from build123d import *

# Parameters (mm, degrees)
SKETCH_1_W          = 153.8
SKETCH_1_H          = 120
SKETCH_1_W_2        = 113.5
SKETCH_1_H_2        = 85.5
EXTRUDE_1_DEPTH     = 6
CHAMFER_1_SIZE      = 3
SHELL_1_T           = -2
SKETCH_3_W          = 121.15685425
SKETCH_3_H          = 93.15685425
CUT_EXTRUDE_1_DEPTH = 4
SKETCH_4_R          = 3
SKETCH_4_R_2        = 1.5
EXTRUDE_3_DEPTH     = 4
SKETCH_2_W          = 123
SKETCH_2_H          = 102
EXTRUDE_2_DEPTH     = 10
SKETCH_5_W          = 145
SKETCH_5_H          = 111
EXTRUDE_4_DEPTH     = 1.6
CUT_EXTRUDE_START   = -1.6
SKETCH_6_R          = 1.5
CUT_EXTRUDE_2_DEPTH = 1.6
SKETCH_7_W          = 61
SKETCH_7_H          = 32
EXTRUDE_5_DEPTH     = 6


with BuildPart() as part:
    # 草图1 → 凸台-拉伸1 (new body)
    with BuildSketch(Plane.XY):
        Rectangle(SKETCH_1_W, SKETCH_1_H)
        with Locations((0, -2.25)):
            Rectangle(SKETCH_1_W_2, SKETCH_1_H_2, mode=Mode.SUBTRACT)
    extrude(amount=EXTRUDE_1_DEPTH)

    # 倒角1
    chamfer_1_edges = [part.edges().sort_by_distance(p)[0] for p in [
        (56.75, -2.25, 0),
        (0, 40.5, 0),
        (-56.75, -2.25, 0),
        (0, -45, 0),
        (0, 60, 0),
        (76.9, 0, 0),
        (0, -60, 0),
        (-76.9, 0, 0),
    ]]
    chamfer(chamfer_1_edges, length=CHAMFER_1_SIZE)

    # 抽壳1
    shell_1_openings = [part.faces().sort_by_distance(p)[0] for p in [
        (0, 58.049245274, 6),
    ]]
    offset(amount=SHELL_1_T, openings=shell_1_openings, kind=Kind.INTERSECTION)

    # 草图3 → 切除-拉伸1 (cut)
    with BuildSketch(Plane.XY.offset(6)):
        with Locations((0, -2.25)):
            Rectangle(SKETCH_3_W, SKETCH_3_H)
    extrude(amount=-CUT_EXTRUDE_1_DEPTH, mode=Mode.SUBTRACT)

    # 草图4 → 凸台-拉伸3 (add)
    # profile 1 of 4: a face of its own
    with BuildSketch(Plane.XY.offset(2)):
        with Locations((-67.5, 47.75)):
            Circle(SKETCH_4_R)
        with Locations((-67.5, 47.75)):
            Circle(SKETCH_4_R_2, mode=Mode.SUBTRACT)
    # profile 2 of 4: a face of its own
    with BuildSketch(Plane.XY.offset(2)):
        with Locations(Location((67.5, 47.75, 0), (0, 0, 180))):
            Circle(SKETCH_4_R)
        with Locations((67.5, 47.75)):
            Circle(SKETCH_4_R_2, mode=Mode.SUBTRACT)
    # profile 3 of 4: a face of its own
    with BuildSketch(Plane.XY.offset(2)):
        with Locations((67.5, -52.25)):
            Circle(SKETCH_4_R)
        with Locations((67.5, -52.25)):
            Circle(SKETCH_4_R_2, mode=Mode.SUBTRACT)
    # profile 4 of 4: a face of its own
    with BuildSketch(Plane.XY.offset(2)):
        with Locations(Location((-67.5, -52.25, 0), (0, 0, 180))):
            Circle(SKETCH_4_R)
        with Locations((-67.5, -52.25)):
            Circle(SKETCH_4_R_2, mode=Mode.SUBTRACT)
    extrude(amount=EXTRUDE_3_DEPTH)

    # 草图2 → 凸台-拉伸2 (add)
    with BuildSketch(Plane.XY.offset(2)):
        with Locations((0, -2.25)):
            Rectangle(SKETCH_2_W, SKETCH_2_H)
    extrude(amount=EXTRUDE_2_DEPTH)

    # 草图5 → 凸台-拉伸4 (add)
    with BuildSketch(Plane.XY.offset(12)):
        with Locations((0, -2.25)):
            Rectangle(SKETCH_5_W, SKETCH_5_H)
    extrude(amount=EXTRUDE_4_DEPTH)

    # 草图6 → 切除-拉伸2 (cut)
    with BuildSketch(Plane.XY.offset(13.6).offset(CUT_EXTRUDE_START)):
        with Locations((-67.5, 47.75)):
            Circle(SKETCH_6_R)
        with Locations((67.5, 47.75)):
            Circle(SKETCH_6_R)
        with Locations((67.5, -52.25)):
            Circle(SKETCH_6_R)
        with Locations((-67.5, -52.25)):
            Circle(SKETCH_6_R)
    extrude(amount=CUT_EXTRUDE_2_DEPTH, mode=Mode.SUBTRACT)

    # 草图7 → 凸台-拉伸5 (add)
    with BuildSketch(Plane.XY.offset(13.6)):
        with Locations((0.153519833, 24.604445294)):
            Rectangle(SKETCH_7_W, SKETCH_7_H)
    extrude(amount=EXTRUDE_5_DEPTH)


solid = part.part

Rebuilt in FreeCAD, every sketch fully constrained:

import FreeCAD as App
import Part
import Sketcher

V = App.Vector
Q = App.Units.Quantity


def edges_at(feature, points):
    """Names of the edges that pass closest to the given points."""
    edges = feature.Shape.Edges
    near = lambda p: min(range(len(edges)), key=lambda i: edges[i].distToShape(Part.Vertex(*p))[0])
    return sorted({f"Edge{near(p) + 1}" for p in points})


def faces_at(feature, points):
    """Names of the faces that lie closest to the given points."""
    faces = feature.Shape.Faces
    near = lambda p: min(range(len(faces)), key=lambda i: faces[i].distToShape(Part.Vertex(*p))[0])
    return sorted({f"Face{near(p) + 1}" for p in points})


def add_polygon(sketch, points):
    """Adds a closed chain of lines whose ends are joined by coincident constraints."""
    first, n = sketch.GeometryCount, len(points)
    for a, b in zip(points, points[1:] + points[:1]):
        sketch.addGeometry(Part.LineSegment(App.Vector(*a, 0), App.Vector(*b, 0)), False)
    for i in range(n):
        sketch.addConstraint(Sketcher.Constraint("Coincident", first + i, 2, first + (i + 1) % n, 1))

doc = App.newDocument("Part")
params = doc.addObject("Spreadsheet::Sheet", "Params")
for row, (alias, value) in enumerate([
    ("sketch1_height", "120 mm"),
    ("sketch1_width", "153.8 mm"),
    ("sketch1_width2", "113.5 mm"),
    ("sketch1_height2", "85.5 mm"),
    ("pad1_length", "6 mm"),
    ("chamfer_size", "3 mm"),
    ("thickness_wall", "2 mm"),
    ("pocket1_length", "4 mm"),
    ("sketch3_diameter", "6 mm"),
    ("sketch3_diameter2", "3 mm"),
    ("pad2_length", "4 mm"),
    ("sketch4_width", "123 mm"),
    ("sketch4_height", "102 mm"),
    ("pad3_length", "10 mm"),
    ("sketch5_width", "145 mm"),
    ("sketch5_height", "111 mm"),
    ("pad4_length", "1.6 mm"),
    ("sketch6_diameter", "3 mm"),
    ("pocket2_length", "1.6 mm"),
    ("sketch7_width", "61 mm"),
    ("sketch7_height", "32 mm"),
    ("pad5_length", "6 mm"),
], start=1):
    params.set(f"A{row}", alias)
    params.set(f"B{row}", "=" + value)
    params.setAlias(f"B{row}", alias)

body = doc.addObject("PartDesign::Body", "Body")

sketch1 = body.newObject("Sketcher::SketchObject", "Sketch")
sketch1.AttachmentSupport = (doc.getObject("XY_Plane"), [""])
sketch1.MapMode = "FlatFace"
add_polygon(sketch1, [(-77, 60), (-77, -60), (77, -60), (77, 60)])
add_polygon(sketch1, [(57, -45), (-57, -45), (-57, 40), (57, 40)])
sketch1.addConstraint(Sketcher.Constraint("Vertical", 0))
sketch1.addConstraint(Sketcher.Constraint("Horizontal", 1))
sketch1.addConstraint(Sketcher.Constraint("Vertical", 2))
sketch1.addConstraint(Sketcher.Constraint("Horizontal", 3))
sketch1.addConstraint(Sketcher.Constraint("Horizontal", 4))
sketch1.addConstraint(Sketcher.Constraint("Vertical", 5))
sketch1.addConstraint(Sketcher.Constraint("Horizontal", 6))
sketch1.addConstraint(Sketcher.Constraint("Vertical", 7))
sketch1.addConstraint(Sketcher.Constraint("Symmetric", 0, 2, 2, 2, -1, 1))
sketch1.addConstraint(Sketcher.Constraint("DistanceY", 0, 2, 0, 1, Q("120 mm")))
sketch1.addConstraint(Sketcher.Constraint("DistanceX", 1, 1, 1, 2, Q("153.8 mm")))
sketch1.addConstraint(Sketcher.Constraint("DistanceX", 4, 2, 4, 1, Q("113.5 mm")))
sketch1.addConstraint(Sketcher.Constraint("DistanceY", 5, 1, 5, 2, Q("85.5 mm")))
sketch1.addConstraint(Sketcher.Constraint("DistanceY", 4, 2, -1, 1, Q("45 mm")))
sketch1.addConstraint(Sketcher.Constraint("DistanceX", 4, 2, -1, 1, Q("56.75 mm")))
sketch1.setExpression("Constraints[17]", "Params.sketch1_height")
sketch1.setExpression("Constraints[18]", "Params.sketch1_width")
sketch1.setExpression("Constraints[19]", "Params.sketch1_width2")
sketch1.setExpression("Constraints[20]", "Params.sketch1_height2")
pad1 = body.newObject("PartDesign::Pad", "Pad")
pad1.Profile = sketch1
pad1.setExpression("Length", "Params.pad1_length")
doc.recompute()

chamfer = body.newObject("PartDesign::Chamfer", "Chamfer")
chamfer.Base = (pad1, edges_at(pad1, [
    (56.75, -2.25, 0),
    (0, 40.5, 0),
    (-56.75, -2.25, 0),
    (0, -45, 0),
    (0, 60, 0),
    (76.9, 0, 0),
    (0, -60, 0),
    (-76.9, 0, 0),
]))
chamfer.setExpression("Size", "Params.chamfer_size")
doc.recompute()

thickness = body.newObject("PartDesign::Thickness", "Thickness")
thickness.Base = (chamfer, faces_at(chamfer, [(-61.52, 0, 6)]))
thickness.setExpression("Value", "Params.thickness_wall")
thickness.Reversed = True
thickness.Join = "Intersection"

sketch2 = body.newObject("Sketcher::SketchObject", "Sketch001")
sketch2.AttachmentSupport = (doc.getObject("XY_Plane"), [""])
sketch2.MapMode = "FlatFace"
sketch2.AttachmentOffset = App.Placement(V(0, 0, 6), App.Rotation())
add_polygon(sketch2, [(-61, 44), (-61, -49), (61, -49), (61, 44)])
sketch2.addConstraint(Sketcher.Constraint("Vertical", 0))
sketch2.addConstraint(Sketcher.Constraint("Horizontal", 1))
sketch2.addConstraint(Sketcher.Constraint("Vertical", 2))
sketch2.addConstraint(Sketcher.Constraint("Horizontal", 3))
sketch2.addConstraint(Sketcher.Constraint("DistanceX", 1, 1, 1, 2, Q("121.156854 mm")))
sketch2.addConstraint(Sketcher.Constraint("DistanceY", 0, 2, 0, 1, Q("93.156854 mm")))
sketch2.addConstraint(Sketcher.Constraint("DistanceX", 0, 2, -1, 1, Q("60.578427 mm")))
sketch2.addConstraint(Sketcher.Constraint("DistanceY", 0, 2, -1, 1, Q("48.828427 mm")))
pocket1 = body.newObject("PartDesign::Pocket", "Pocket")
pocket1.Profile = sketch2
pocket1.setExpression("Length", "Params.pocket1_length")

sketch3 = body.newObject("Sketcher::SketchObject", "Sketch002")
sketch3.AttachmentSupport = (doc.getObject("XY_Plane"), [""])
sketch3.MapMode = "FlatFace"
sketch3.AttachmentOffset = App.Placement(V(0, 0, 2), App.Rotation())
sketch3.addGeometry(Part.Circle(V(-67.5, 47.8, 0), V(0, 0, 1), 3), False)
sketch3.addGeometry(Part.Circle(V(-67.5, 47.8, 0), V(0, 0, 1), 1.5), False)
sketch3.addGeometry(Part.Circle(V(67.5, 47.8, 0), V(0, 0, 1), 3), False)
sketch3.addGeometry(Part.Circle(V(67.5, 47.8, 0), V(0, 0, 1), 1.5), False)
sketch3.addGeometry(Part.Circle(V(67.5, -52.2, 0), V(0, 0, 1), 3), False)
sketch3.addGeometry(Part.Circle(V(67.5, -52.2, 0), V(0, 0, 1), 1.5), False)
sketch3.addGeometry(Part.Circle(V(-67.5, -52.2, 0), V(0, 0, 1), 3), False)
sketch3.addGeometry(Part.Circle(V(-67.5, -52.2, 0), V(0, 0, 1), 1.5), False)
sketch3.addConstraint(Sketcher.Constraint("Coincident", 1, 3, 0, 3))
sketch3.addConstraint(Sketcher.Constraint("Coincident", 3, 3, 2, 3))
sketch3.addConstraint(Sketcher.Constraint("Coincident", 5, 3, 4, 3))
sketch3.addConstraint(Sketcher.Constraint("Coincident", 7, 3, 6, 3))
sketch3.addConstraint(Sketcher.Constraint("Equal", 0, 2))
sketch3.addConstraint(Sketcher.Constraint("Equal", 1, 3))
sketch3.addConstraint(Sketcher.Constraint("Equal", 2, 4))
sketch3.addConstraint(Sketcher.Constraint("Equal", 3, 5))
sketch3.addConstraint(Sketcher.Constraint("Equal", 4, 6))
sketch3.addConstraint(Sketcher.Constraint("Equal", 5, 7))
sketch3.addConstraint(Sketcher.Constraint("Symmetric", 0, 3, 2, 3, -2))
sketch3.addConstraint(Sketcher.Constraint("Symmetric", 4, 3, 6, 3, -2))
sketch3.addConstraint(Sketcher.Constraint("Vertical", 3, 3, 4, 3))
sketch3.addConstraint(Sketcher.Constraint("Diameter", 0, Q("6 mm")))
sketch3.addConstraint(Sketcher.Constraint("Diameter", 1, Q("3 mm")))
sketch3.addConstraint(Sketcher.Constraint("DistanceX", 0, 3, 2, 3, Q("135 mm")))
sketch3.addConstraint(Sketcher.Constraint("DistanceY", 4, 3, 2, 3, Q("100 mm")))
sketch3.addConstraint(Sketcher.Constraint("DistanceY", -1, 1, 0, 3, Q("47.75 mm")))
sketch3.setExpression("Constraints[13]", "Params.sketch3_diameter")
sketch3.setExpression("Constraints[14]", "Params.sketch3_diameter2")
pad2 = body.newObject("PartDesign::Pad", "Pad001")
pad2.Profile = sketch3
pad2.setExpression("Length", "Params.pad2_length")

sketch4 = body.newObject("Sketcher::SketchObject", "Sketch003")
sketch4.AttachmentSupport = (doc.getObject("XY_Plane"), [""])
sketch4.MapMode = "FlatFace"
sketch4.AttachmentOffset = App.Placement(V(0, 0, 2), App.Rotation())
add_polygon(sketch4, [(-62, 49), (-62, -53), (62, -53), (62, 49)])
sketch4.addConstraint(Sketcher.Constraint("Vertical", 0))
sketch4.addConstraint(Sketcher.Constraint("Horizontal", 1))
sketch4.addConstraint(Sketcher.Constraint("Vertical", 2))
sketch4.addConstraint(Sketcher.Constraint("Horizontal", 3))
sketch4.addConstraint(Sketcher.Constraint("DistanceX", 1, 1, 1, 2, Q("123 mm")))
sketch4.addConstraint(Sketcher.Constraint("DistanceY", 0, 2, 0, 1, Q("102 mm")))
sketch4.addConstraint(Sketcher.Constraint("DistanceX", 0, 2, -1, 1, Q("61.5 mm")))
sketch4.addConstraint(Sketcher.Constraint("DistanceY", 0, 2, -1, 1, Q("53.25 mm")))
sketch4.setExpression("Constraints[8]", "Params.sketch4_width")
sketch4.setExpression("Constraints[9]", "Params.sketch4_height")
pad3 = body.newObject("PartDesign::Pad", "Pad002")
pad3.Profile = sketch4
pad3.setExpression("Length", "Params.pad3_length")

sketch5 = body.newObject("Sketcher::SketchObject", "Sketch004")
sketch5.AttachmentSupport = (doc.getObject("XY_Plane"), [""])
sketch5.MapMode = "FlatFace"
sketch5.AttachmentOffset = App.Placement(V(0, 0, 12), App.Rotation())
add_polygon(sketch5, [(-72, 53), (-72, -58), (72, -58), (72, 53)])
sketch5.addConstraint(Sketcher.Constraint("Vertical", 0))
sketch5.addConstraint(Sketcher.Constraint("Horizontal", 1))
sketch5.addConstraint(Sketcher.Constraint("Vertical", 2))
sketch5.addConstraint(Sketcher.Constraint("Horizontal", 3))
sketch5.addConstraint(Sketcher.Constraint("DistanceX", 1, 1, 1, 2, Q("145 mm")))
sketch5.addConstraint(Sketcher.Constraint("DistanceY", 0, 2, 0, 1, Q("111 mm")))
sketch5.addConstraint(Sketcher.Constraint("DistanceX", 0, 2, -1, 1, Q("72.5 mm")))
sketch5.addConstraint(Sketcher.Constraint("DistanceY", 0, 2, -1, 1, Q("57.75 mm")))
sketch5.setExpression("Constraints[8]", "Params.sketch5_width")
sketch5.setExpression("Constraints[9]", "Params.sketch5_height")
pad4 = body.newObject("PartDesign::Pad", "Pad003")
pad4.Profile = sketch5
pad4.setExpression("Length", "Params.pad4_length")

sketch6 = body.newObject("Sketcher::SketchObject", "Sketch005")
sketch6.AttachmentSupport = (doc.getObject("XY_Plane"), [""])
sketch6.MapMode = "FlatFace"
sketch6.AttachmentOffset = App.Placement(V(0, 0, 12), App.Rotation())
sketch6.addGeometry(Part.Circle(V(-67.5, 47.8, 0), V(0, 0, 1), 1.5), False)
sketch6.addGeometry(Part.Circle(V(67.5, 47.8, 0), V(0, 0, 1), 1.5), False)
sketch6.addGeometry(Part.Circle(V(67.5, -52.2, 0), V(0, 0, 1), 1.5), False)
sketch6.addGeometry(Part.Circle(V(-67.5, -52.2, 0), V(0, 0, 1), 1.5), False)
sketch6.addConstraint(Sketcher.Constraint("Equal", 0, 1))
sketch6.addConstraint(Sketcher.Constraint("Equal", 1, 2))
sketch6.addConstraint(Sketcher.Constraint("Equal", 2, 3))
sketch6.addConstraint(Sketcher.Constraint("Symmetric", 0, 3, 1, 3, -2))
sketch6.addConstraint(Sketcher.Constraint("Symmetric", 2, 3, 3, 3, -2))
sketch6.addConstraint(Sketcher.Constraint("Vertical", 1, 3, 2, 3))
sketch6.addConstraint(Sketcher.Constraint("Diameter", 0, Q("3 mm")))
sketch6.addConstraint(Sketcher.Constraint("DistanceX", 0, 3, 1, 3, Q("135 mm")))
sketch6.addConstraint(Sketcher.Constraint("DistanceY", 2, 3, 1, 3, Q("100 mm")))
sketch6.addConstraint(Sketcher.Constraint("DistanceY", -1, 1, 0, 3, Q("47.75 mm")))
sketch6.setExpression("Constraints[6]", "Params.sketch6_diameter")
pocket2 = body.newObject("PartDesign::Pocket", "Pocket001")
pocket2.Profile = sketch6
pocket2.setExpression("Length", "Params.pocket2_length")
pocket2.Reversed = True

sketch7 = body.newObject("Sketcher::SketchObject", "Sketch006")
sketch7.AttachmentSupport = (doc.getObject("XY_Plane"), [""])
sketch7.MapMode = "FlatFace"
sketch7.AttachmentOffset = App.Placement(V(0, 0, 13.6), App.Rotation())
add_polygon(sketch7, [(-30, 41), (-30, 9), (31, 9), (31, 41)])
sketch7.addConstraint(Sketcher.Constraint("Vertical", 0))
sketch7.addConstraint(Sketcher.Constraint("Horizontal", 1))
sketch7.addConstraint(Sketcher.Constraint("Vertical", 2))
sketch7.addConstraint(Sketcher.Constraint("Horizontal", 3))
sketch7.addConstraint(Sketcher.Constraint("DistanceX", 1, 1, 1, 2, Q("61 mm")))
sketch7.addConstraint(Sketcher.Constraint("DistanceY", 0, 2, 0, 1, Q("32 mm")))
sketch7.addConstraint(Sketcher.Constraint("DistanceX", 0, 2, -1, 1, Q("30.34648 mm")))
sketch7.addConstraint(Sketcher.Constraint("DistanceY", -1, 1, 0, 2, Q("8.604445 mm")))
sketch7.setExpression("Constraints[8]", "Params.sketch7_width")
sketch7.setExpression("Constraints[9]", "Params.sketch7_height")
pad5 = body.newObject("PartDesign::Pad", "Pad004")
pad5.Profile = sketch7
pad5.setExpression("Length", "Params.pad5_length")

doc.recompute()
